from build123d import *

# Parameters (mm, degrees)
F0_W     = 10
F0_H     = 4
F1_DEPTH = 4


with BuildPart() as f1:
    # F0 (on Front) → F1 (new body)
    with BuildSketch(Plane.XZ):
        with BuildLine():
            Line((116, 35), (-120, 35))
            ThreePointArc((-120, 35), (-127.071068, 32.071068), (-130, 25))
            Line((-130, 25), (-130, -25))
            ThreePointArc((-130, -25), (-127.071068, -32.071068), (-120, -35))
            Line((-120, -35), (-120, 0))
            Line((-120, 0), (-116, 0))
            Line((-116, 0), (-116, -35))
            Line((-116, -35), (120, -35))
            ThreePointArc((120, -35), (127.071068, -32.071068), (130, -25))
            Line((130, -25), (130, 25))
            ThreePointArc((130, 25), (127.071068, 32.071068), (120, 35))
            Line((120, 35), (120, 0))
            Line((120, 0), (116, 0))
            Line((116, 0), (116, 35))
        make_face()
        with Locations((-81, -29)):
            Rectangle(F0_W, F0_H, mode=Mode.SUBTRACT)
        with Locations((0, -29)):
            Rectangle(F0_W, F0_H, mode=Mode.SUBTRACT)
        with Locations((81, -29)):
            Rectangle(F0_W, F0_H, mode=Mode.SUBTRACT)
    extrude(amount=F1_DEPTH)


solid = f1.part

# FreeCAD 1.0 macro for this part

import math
import FreeCAD as App
import Part
import Sketcher

V = App.Vector


def add_polygon(sketch, points):
    """Adds a closed chain of lines whose ends are joined by coincident constraints."""
    first, n = sketch.GeometryCount, len(points)
    for a, b in zip(points, points[1:] + points[:1]):
        sketch.addGeometry(Part.LineSegment(App.Vector(*a, 0), App.Vector(*b, 0)), False)
    for i in range(n):
        sketch.addConstraint(Sketcher.Constraint("Coincident", first + i, 2, first + (i + 1) % n, 1))

doc = App.newDocument("Part")
body = doc.addObject("PartDesign::Body", "Body")

# Sketch on XZ plane
sketch1 = doc.addObject("Sketcher::SketchObject", "Sketch")
body.addObject(sketch1)
sketch1.AttachmentSupport = (doc.XZ_Plane, [""])
sketch1.MapMode = "FlatFace"
sketch1.addGeometry(Part.LineSegment(V(116, 35, 0), V(-120, 35, 0)), False)  # 0
sketch1.addGeometry(Part.ArcOfCircle(Part.Circle(V(-120, 25, 0), V(0, 0, 1), 10), math.radians(90), math.radians(180)), False)  # 1
sketch1.addGeometry(Part.LineSegment(V(-130, 25, 0), V(-130, -25, 0)), False)  # 2
sketch1.addGeometry(Part.ArcOfCircle(Part.Circle(V(-120, -25, 0), V(0, 0, 1), 10), math.radians(180), math.radians(270)), False)  # 3
sketch1.addGeometry(Part.LineSegment(V(-120, -35, 0), V(-120, 0, 0)), False)  # 4
sketch1.addGeometry(Part.LineSegment(V(-120, 0, 0), V(-116, 0, 0)), False)  # 5
sketch1.addGeometry(Part.LineSegment(V(-116, 0, 0), V(-116, -35, 0)), False)  # 6
sketch1.addGeometry(Part.LineSegment(V(-116, -35, 0), V(120, -35, 0)), False)  # 7
sketch1.addGeometry(Part.ArcOfCircle(Part.Circle(V(120, -25, 0), V(0, 0, 1), 10), math.radians(-90), math.radians(0)), False)  # 8
sketch1.addGeometry(Part.LineSegment(V(130, -25, 0), V(130, 25, 0)), False)  # 9
sketch1.addGeometry(Part.ArcOfCircle(Part.Circle(V(120, 25, 0), V(0, 0, 1), 10), math.radians(0), math.radians(90)), False)  # 10
sketch1.addGeometry(Part.LineSegment(V(120, 35, 0), V(120, 0, 0)), False)  # 11
sketch1.addGeometry(Part.LineSegment(V(120, 0, 0), V(116, 0, 0)), False)  # 12
sketch1.addGeometry(Part.LineSegment(V(116, 0, 0), V(116, 35, 0)), False)  # 13
add_polygon(sketch1, [(-76, -31), (-86, -31), (-86, -27), (-76, -27)])  # lines 14-17
add_polygon(sketch1, [(5, -31), (-5, -31), (-5, -27), (5, -27)])  # lines 18-21
add_polygon(sketch1, [(86, -31), (76, -31), (76, -27), (86, -27)])  # lines 22-25
sketch1.addConstraint(Sketcher.Constraint("Tangent", 0, 2, 1, 1))
sketch1.addConstraint(Sketcher.Constraint("Tangent", 1, 2, 2, 1))
sketch1.addConstraint(Sketcher.Constraint("Tangent", 2, 2, 3, 1))
sketch1.addConstraint(Sketcher.Constraint("Coincident", 3, 2, 4, 1))
sketch1.addConstraint(Sketcher.Constraint("Coincident", 4, 2, 5, 1))
sketch1.addConstraint(Sketcher.Constraint("Coincident", 5, 2, 6, 1))
sketch1.addConstraint(Sketcher.Constraint("Coincident", 6, 2, 7, 1))
sketch1.addConstraint(Sketcher.Constraint("Tangent", 7, 2, 8, 1))
sketch1.addConstraint(Sketcher.Constraint("Tangent", 8, 2, 9, 1))
sketch1.addConstraint(Sketcher.Constraint("Tangent", 9, 2, 10, 1))
sketch1.addConstraint(Sketcher.Constraint("Coincident", 10, 2, 11, 1))
sketch1.addConstraint(Sketcher.Constraint("Coincident", 11, 2, 12, 1))
sketch1.addConstraint(Sketcher.Constraint("Coincident", 12, 2, 13, 1))
sketch1.addConstraint(Sketcher.Constraint("Coincident", 13, 2, 0, 1))
sketch1.addConstraint(Sketcher.Constraint("Horizontal", 0))
sketch1.addConstraint(Sketcher.Constraint("Vertical", 2))
sketch1.addConstraint(Sketcher.Constraint("Vertical", 4))
sketch1.addConstraint(Sketcher.Constraint("Horizontal", 5))
sketch1.addConstraint(Sketcher.Constraint("Vertical", 6))
sketch1.addConstraint(Sketcher.Constraint("Horizontal", 7))
sketch1.addConstraint(Sketcher.Constraint("Vertical", 9))
sketch1.addConstraint(Sketcher.Constraint("Vertical", 11))
sketch1.addConstraint(Sketcher.Constraint("Horizontal", 12))
sketch1.addConstraint(Sketcher.Constraint("Vertical", 13))
sketch1.addConstraint(Sketcher.Constraint("Horizontal", 14))
sketch1.addConstraint(Sketcher.Constraint("Vertical", 15))
sketch1.addConstraint(Sketcher.Constraint("Horizontal", 16))
sketch1.addConstraint(Sketcher.Constraint("Vertical", 17))
sketch1.addConstraint(Sketcher.Constraint("Horizontal", 18))
sketch1.addConstraint(Sketcher.Constraint("Vertical", 19))
sketch1.addConstraint(Sketcher.Constraint("Horizontal", 20))
sketch1.addConstraint(Sketcher.Constraint("Vertical", 21))
sketch1.addConstraint(Sketcher.Constraint("Horizontal", 22))
sketch1.addConstraint(Sketcher.Constraint("Vertical", 23))
sketch1.addConstraint(Sketcher.Constraint("Horizontal", 24))
sketch1.addConstraint(Sketcher.Constraint("Vertical", 25))
sketch1.addConstraint(Sketcher.Constraint("Equal", 1, 3))
sketch1.addConstraint(Sketcher.Constraint("Equal", 3, 8))
sketch1.addConstraint(Sketcher.Constraint("Equal", 8, 10))
sketch1.addConstraint(Sketcher.Constraint("Symmetric", 1, 3, 8, 3, -1, 1))
sketch1.addConstraint(Sketcher.Constraint("Symmetric", 3, 2, 10, 2, -1, 1))
sketch1.addConstraint(Sketcher.Constraint("Symmetric", 5, 2, 12, 2, -1, 1))
sketch1.addConstraint(Sketcher.Constraint("Symmetric", 3, 2, 7, 2, -2))
sketch1.addConstraint(Sketcher.Constraint("Symmetric", 17, 2, 22, 2, -2))
sketch1.addConstraint(Sketcher.Constraint("Symmetric", 15, 2, 24, 2, -2))
sketch1.addConstraint(Sketcher.Constraint("PointOnObject", 4, 2, -1))
sketch1.addConstraint(Sketcher.Constraint("Horizontal", 17, 2, 18, 2))
sketch1.addConstraint(Sketcher.Constraint("Horizontal", 16, 2, 19, 2))
sketch1.addConstraint(Sketcher.Constraint("Equal", 16, 18))
sketch1.addConstraint(Sketcher.Constraint("Equal", 12, 15))
sketch1.addConstraint(Sketcher.Constraint("Radius", 1, 9.999999))
sketch1.addConstraint(Sketcher.Constraint("DistanceX", 0, 2, 0, 1, 236.0))
sketch1.addConstraint(Sketcher.Constraint("DistanceX", 5, 1, 5, 2, 4.0))
sketch1.addConstraint(Sketcher.Constraint("DistanceX", 14, 2, 14, 1, 10.0))
sketch1.addConstraint(Sketcher.Constraint("DistanceY", 2, 2, 2, 1, 50.0))
sketch1.addConstraint(Sketcher.Constraint("DistanceX", 14, 2, -1, 1, 86.0))
sketch1.addConstraint(Sketcher.Constraint("DistanceY", 14, 2, -1, 1, 31.0))
sketch1.addConstraint(Sketcher.Constraint("DistanceX", 18, 2, -1, 1, 5.0))
pad1 = doc.addObject("PartDesign::Pad", "Pad")
body.addObject(pad1)
pad1.Profile = sketch1
pad1.Length = 4

doc.recompute()
